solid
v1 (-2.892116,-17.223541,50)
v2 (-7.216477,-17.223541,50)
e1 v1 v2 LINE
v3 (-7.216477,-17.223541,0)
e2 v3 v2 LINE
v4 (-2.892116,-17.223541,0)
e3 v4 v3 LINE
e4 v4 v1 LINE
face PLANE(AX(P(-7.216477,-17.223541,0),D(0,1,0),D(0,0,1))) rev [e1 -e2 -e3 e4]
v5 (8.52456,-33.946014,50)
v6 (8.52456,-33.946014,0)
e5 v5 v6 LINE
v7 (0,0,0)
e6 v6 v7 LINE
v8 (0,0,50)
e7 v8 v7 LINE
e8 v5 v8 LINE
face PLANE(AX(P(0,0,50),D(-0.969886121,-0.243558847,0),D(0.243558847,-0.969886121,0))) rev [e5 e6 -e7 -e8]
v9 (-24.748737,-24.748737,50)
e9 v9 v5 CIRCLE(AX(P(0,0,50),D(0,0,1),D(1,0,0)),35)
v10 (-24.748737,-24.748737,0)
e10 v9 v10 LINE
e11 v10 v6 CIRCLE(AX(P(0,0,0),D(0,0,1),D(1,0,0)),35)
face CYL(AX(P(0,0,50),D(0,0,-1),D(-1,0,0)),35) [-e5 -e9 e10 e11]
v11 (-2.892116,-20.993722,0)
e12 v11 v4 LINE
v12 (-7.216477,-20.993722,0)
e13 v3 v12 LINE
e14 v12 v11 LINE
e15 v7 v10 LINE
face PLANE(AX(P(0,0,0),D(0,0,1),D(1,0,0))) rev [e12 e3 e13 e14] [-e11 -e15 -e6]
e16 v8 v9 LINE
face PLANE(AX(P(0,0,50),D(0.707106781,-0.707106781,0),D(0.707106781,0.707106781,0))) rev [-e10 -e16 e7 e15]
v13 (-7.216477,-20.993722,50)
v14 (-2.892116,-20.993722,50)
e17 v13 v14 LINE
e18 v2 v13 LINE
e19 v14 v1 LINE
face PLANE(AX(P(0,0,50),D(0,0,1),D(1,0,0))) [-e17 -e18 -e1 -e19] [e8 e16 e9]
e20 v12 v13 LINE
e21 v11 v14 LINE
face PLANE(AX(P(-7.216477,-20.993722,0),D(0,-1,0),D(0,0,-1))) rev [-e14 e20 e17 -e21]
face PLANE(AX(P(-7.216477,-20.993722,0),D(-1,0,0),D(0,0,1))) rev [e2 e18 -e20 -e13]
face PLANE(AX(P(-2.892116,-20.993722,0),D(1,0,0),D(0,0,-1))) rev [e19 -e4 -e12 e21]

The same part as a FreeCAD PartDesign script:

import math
import FreeCAD as App
import Part
import Sketcher
Q = App.Units.Quantity


def add_polygon(sketch, points):
    """Adds a closed chain of lines whose ends are joined by coincident constraints."""
    first, n = sketch.GeometryCount, len(points)
    for a, b in zip(points, points[1:] + points[:1]):
        sketch.addGeometry(Part.LineSegment(App.Vector(*a, 0), App.Vector(*b, 0)), False)
    for i in range(n):
        sketch.addConstraint(Sketcher.Constraint("Coincident", first + i, 2, first + (i + 1) % n, 1))

doc = App.newDocument("Part")
body = doc.addObject("PartDesign::Body", "Body")

# Sketch on XY plane
sketch1 = doc.addObject("Sketcher::SketchObject", "Sketch")
body.addObject(sketch1)
sketch1.AttachmentSupport = (doc.XY_Plane, [""])
sketch1.MapMode = "FlatFace"
sketch1.addGeometry(Part.LineSegment(App.Vector(0, 0, 0), App.Vector(-24.748737, -24.748737, 0)), False)
sketch1.addGeometry(Part.ArcOfCircle(Part.Circle(App.Vector(0, 0, 0), App.Vector(0, 0, 1), 35), math.radians(-135), math.radians(-75.903318)), False)
sketch1.addGeometry(Part.LineSegment(App.Vector(8.52456, -33.946014, 0), App.Vector(0, 0, 0)), False)
sketch1.addGeometry(Part.Circle(App.Vector(-5.054296, -19.108631, 0), App.Vector(0, 0, 1), 1.5), False)
sketch1.addConstraint(Sketcher.Constraint("Coincident", 0, 2, 1, 1))
sketch1.addConstraint(Sketcher.Constraint("Coincident", 1, 2, 2, 1))
sketch1.addConstraint(Sketcher.Constraint("Coincident", 2, 2, 0, 1))
sketch1.addConstraint(Sketcher.Constraint("Coincident", 1, 3, -1, 1))
sketch1.addConstraint(Sketcher.Constraint("Coincident", 2, 2, -1, 1))
sketch1.addConstraint(Sketcher.Constraint("Diameter", 3, Q("3 mm")))
sketch1.addConstraint(Sketcher.Constraint("Radius", 1, Q("35 mm")))
sketch1.addConstraint(Sketcher.Constraint("Angle", 0, Q("-135 deg")))
sketch1.addConstraint(Sketcher.Constraint("DistanceY", 3, 3, -1, 1, Q("19.108631 mm")))
sketch1.addConstraint(Sketcher.Constraint("DistanceX", -1, 1, 1, 2, Q("8.52456 mm")))
sketch1.addConstraint(Sketcher.Constraint("DistanceX", 0, 2, 3, 3, Q("19.694441 mm")))
pad1 = doc.addObject("PartDesign::Pad", "Pad")
body.addObject(pad1)
pad1.Profile = sketch1
pad1.Length = 50

# Sketch on XY plane
sketch2 = doc.addObject("Sketcher::SketchObject", "Sketch001")
body.addObject(sketch2)
sketch2.AttachmentSupport = (doc.XY_Plane, [""])
sketch2.MapMode = "FlatFace"
sketch2.AttachmentOffset = App.Placement(App.Vector(0, 0, 50), App.Rotation())
add_polygon(sketch2, [(-7.216477, -17.223541), (-7.216477, -20.993722), (-2.892116, -20.993722), (-2.892116, -17.223541)])  # lines 0-3
sketch2.addConstraint(Sketcher.Constraint("Vertical", 0))
sketch2.addConstraint(Sketcher.Constraint("Horizontal", 1))
sketch2.addConstraint(Sketcher.Constraint("Vertical", 2))
sketch2.addConstraint(Sketcher.Constraint("Horizontal", 3))
sketch2.addConstraint(Sketcher.Constraint("DistanceX", 1, 1, 1, 2, Q("4.324362 mm")))
sketch2.addConstraint(Sketcher.Constraint("DistanceY", 0, 2, 0, 1, Q("3.770181 mm")))
sketch2.addConstraint(Sketcher.Constraint("DistanceY", 0, 2, -1, 1, Q("20.993722 mm")))
sketch2.addConstraint(Sketcher.Constraint("DistanceX", 0, 2, -1, 1, Q("7.216477 mm")))
pocket1 = doc.addObject("PartDesign::Pocket", "Pocket")
body.addObject(pocket1)
pocket1.Profile = sketch2
pocket1.Length = 50

doc.recompute()
